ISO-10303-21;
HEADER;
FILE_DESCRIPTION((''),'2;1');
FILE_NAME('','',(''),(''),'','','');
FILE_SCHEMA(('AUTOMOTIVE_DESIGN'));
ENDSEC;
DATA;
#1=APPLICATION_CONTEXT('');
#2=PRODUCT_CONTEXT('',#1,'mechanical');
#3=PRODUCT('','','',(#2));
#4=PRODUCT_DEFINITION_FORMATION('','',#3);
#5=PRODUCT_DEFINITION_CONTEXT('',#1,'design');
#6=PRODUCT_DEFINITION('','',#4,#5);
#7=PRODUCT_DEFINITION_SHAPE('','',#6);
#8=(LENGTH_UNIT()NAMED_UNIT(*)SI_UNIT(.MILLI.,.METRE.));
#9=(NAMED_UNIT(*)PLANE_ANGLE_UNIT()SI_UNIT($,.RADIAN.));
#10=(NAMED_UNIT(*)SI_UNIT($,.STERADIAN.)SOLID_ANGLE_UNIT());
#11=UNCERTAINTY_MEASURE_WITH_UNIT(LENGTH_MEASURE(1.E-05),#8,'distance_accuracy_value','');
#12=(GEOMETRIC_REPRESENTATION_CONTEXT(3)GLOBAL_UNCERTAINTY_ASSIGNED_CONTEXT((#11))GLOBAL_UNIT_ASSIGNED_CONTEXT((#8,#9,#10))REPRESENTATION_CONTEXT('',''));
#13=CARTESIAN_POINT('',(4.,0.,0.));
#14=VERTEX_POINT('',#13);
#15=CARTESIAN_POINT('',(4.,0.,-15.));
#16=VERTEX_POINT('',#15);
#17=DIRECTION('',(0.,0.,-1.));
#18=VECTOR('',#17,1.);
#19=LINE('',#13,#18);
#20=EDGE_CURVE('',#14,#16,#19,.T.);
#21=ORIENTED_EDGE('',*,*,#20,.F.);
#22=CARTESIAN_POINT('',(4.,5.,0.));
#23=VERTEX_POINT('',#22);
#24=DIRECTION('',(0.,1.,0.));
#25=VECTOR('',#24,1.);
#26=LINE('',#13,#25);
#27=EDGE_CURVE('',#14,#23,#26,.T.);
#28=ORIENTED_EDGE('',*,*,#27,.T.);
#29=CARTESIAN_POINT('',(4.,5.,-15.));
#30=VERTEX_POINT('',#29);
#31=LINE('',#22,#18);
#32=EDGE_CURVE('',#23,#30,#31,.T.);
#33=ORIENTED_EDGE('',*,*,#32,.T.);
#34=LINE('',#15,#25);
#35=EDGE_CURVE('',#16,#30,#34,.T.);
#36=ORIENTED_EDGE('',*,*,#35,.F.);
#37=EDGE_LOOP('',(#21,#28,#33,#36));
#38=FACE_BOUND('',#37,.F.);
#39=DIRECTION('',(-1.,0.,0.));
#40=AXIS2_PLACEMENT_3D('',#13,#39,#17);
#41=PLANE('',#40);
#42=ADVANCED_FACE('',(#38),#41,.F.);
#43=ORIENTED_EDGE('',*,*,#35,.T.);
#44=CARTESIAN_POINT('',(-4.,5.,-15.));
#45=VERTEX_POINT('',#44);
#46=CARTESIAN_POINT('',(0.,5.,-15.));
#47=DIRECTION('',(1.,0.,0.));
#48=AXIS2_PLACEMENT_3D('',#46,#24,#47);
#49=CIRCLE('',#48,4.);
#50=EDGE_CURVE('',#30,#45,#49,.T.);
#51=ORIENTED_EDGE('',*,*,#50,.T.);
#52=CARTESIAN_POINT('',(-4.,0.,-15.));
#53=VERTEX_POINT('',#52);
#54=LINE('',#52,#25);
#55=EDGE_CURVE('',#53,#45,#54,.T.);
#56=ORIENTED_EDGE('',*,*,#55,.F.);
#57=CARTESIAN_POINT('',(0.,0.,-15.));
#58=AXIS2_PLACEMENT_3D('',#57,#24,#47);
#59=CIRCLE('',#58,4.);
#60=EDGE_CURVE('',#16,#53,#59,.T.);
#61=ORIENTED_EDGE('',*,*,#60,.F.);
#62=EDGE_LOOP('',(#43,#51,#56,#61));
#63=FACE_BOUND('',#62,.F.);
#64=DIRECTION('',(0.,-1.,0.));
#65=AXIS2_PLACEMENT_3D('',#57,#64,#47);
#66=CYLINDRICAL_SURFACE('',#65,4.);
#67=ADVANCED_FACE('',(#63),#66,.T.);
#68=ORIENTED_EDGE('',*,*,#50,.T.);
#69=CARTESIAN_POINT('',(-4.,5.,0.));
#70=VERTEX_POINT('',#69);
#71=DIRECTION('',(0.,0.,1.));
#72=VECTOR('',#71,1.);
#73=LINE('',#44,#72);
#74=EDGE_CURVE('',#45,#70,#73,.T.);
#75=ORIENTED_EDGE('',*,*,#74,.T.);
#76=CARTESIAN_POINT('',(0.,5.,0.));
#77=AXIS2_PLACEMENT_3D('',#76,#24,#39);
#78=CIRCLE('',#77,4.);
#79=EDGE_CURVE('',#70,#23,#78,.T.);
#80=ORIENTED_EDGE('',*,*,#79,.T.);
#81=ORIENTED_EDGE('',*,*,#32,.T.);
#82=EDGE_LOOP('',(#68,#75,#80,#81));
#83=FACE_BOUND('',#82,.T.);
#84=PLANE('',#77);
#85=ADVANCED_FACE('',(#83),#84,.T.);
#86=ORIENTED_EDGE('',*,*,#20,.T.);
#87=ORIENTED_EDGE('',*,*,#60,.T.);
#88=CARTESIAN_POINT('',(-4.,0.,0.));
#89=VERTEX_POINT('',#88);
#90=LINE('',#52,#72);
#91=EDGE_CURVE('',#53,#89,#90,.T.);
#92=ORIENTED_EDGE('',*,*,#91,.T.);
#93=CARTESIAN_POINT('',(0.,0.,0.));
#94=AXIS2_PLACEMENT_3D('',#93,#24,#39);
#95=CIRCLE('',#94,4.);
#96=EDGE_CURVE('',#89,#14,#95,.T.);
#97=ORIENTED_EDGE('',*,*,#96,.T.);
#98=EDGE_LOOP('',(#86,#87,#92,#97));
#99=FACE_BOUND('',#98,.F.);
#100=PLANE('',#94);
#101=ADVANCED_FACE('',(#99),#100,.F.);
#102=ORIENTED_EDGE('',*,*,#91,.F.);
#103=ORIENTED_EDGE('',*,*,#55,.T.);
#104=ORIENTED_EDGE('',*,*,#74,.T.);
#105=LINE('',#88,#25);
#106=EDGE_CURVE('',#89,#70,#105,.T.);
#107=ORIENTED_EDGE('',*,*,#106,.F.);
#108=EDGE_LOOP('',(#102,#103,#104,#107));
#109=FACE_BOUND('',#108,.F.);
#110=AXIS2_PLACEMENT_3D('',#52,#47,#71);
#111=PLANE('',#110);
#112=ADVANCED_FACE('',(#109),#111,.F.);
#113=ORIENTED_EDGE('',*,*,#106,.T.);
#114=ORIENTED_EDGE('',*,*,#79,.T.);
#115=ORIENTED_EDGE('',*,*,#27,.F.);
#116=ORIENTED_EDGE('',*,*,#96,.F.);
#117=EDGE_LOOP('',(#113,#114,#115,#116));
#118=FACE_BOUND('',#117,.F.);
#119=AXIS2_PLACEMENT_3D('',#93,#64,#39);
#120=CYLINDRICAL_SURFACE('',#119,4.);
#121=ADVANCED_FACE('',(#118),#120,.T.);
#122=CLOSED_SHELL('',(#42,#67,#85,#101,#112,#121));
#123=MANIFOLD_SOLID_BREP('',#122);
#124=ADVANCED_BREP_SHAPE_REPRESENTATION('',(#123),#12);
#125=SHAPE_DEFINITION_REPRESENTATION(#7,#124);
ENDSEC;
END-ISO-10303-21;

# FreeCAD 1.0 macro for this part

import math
import FreeCAD as App
import Part
import Sketcher
Q = App.Units.Quantity

doc = App.newDocument("Part")
body = doc.addObject("PartDesign::Body", "Body")

sketch1 = body.newObject("Sketcher::SketchObject", "Sketch")
sketch1.AttachmentSupport = (doc.getObject("XZ_Plane"), [""])
sketch1.MapMode = "FlatFace"
sketch1.addGeometry([
    Part.ArcOfCircle(Part.Circle(App.Vector(0, 0, 0), App.Vector(0, 0, 1), 4), math.radians(0), math.radians(180)),
    Part.LineSegment(App.Vector(4, 0, 0), App.Vector(4, -15, 0)),
    Part.ArcOfCircle(Part.Circle(App.Vector(0, -15, 0), App.Vector(0, 0, 1), 4), math.radians(180), math.radians(360)),
    Part.LineSegment(App.Vector(-4, -15, 0), App.Vector(-4, 0, 0)),
], False)
sketch1.addConstraint([
    Sketcher.Constraint("Tangent", 0, 1, 1, 1),
    Sketcher.Constraint("Tangent", 1, 2, 2, 2),
    Sketcher.Constraint("Tangent", 2, 1, 3, 1),
    Sketcher.Constraint("Tangent", 3, 2, 0, 2),
    Sketcher.Constraint("Vertical", 1),
    Sketcher.Constraint("Vertical", 3),
    Sketcher.Constraint("Coincident", 0, 3, -1, 1),
    Sketcher.Constraint("Radius", 0, Q("4 mm")),
    Sketcher.Constraint("DistanceY", 1, 2, 1, 1, Q("15 mm")),
])
pad1 = body.newObject("PartDesign::Pad", "Pad")
pad1.Profile = sketch1
pad1.Length = 5
pad1.Reversed = True

doc.recompute()
